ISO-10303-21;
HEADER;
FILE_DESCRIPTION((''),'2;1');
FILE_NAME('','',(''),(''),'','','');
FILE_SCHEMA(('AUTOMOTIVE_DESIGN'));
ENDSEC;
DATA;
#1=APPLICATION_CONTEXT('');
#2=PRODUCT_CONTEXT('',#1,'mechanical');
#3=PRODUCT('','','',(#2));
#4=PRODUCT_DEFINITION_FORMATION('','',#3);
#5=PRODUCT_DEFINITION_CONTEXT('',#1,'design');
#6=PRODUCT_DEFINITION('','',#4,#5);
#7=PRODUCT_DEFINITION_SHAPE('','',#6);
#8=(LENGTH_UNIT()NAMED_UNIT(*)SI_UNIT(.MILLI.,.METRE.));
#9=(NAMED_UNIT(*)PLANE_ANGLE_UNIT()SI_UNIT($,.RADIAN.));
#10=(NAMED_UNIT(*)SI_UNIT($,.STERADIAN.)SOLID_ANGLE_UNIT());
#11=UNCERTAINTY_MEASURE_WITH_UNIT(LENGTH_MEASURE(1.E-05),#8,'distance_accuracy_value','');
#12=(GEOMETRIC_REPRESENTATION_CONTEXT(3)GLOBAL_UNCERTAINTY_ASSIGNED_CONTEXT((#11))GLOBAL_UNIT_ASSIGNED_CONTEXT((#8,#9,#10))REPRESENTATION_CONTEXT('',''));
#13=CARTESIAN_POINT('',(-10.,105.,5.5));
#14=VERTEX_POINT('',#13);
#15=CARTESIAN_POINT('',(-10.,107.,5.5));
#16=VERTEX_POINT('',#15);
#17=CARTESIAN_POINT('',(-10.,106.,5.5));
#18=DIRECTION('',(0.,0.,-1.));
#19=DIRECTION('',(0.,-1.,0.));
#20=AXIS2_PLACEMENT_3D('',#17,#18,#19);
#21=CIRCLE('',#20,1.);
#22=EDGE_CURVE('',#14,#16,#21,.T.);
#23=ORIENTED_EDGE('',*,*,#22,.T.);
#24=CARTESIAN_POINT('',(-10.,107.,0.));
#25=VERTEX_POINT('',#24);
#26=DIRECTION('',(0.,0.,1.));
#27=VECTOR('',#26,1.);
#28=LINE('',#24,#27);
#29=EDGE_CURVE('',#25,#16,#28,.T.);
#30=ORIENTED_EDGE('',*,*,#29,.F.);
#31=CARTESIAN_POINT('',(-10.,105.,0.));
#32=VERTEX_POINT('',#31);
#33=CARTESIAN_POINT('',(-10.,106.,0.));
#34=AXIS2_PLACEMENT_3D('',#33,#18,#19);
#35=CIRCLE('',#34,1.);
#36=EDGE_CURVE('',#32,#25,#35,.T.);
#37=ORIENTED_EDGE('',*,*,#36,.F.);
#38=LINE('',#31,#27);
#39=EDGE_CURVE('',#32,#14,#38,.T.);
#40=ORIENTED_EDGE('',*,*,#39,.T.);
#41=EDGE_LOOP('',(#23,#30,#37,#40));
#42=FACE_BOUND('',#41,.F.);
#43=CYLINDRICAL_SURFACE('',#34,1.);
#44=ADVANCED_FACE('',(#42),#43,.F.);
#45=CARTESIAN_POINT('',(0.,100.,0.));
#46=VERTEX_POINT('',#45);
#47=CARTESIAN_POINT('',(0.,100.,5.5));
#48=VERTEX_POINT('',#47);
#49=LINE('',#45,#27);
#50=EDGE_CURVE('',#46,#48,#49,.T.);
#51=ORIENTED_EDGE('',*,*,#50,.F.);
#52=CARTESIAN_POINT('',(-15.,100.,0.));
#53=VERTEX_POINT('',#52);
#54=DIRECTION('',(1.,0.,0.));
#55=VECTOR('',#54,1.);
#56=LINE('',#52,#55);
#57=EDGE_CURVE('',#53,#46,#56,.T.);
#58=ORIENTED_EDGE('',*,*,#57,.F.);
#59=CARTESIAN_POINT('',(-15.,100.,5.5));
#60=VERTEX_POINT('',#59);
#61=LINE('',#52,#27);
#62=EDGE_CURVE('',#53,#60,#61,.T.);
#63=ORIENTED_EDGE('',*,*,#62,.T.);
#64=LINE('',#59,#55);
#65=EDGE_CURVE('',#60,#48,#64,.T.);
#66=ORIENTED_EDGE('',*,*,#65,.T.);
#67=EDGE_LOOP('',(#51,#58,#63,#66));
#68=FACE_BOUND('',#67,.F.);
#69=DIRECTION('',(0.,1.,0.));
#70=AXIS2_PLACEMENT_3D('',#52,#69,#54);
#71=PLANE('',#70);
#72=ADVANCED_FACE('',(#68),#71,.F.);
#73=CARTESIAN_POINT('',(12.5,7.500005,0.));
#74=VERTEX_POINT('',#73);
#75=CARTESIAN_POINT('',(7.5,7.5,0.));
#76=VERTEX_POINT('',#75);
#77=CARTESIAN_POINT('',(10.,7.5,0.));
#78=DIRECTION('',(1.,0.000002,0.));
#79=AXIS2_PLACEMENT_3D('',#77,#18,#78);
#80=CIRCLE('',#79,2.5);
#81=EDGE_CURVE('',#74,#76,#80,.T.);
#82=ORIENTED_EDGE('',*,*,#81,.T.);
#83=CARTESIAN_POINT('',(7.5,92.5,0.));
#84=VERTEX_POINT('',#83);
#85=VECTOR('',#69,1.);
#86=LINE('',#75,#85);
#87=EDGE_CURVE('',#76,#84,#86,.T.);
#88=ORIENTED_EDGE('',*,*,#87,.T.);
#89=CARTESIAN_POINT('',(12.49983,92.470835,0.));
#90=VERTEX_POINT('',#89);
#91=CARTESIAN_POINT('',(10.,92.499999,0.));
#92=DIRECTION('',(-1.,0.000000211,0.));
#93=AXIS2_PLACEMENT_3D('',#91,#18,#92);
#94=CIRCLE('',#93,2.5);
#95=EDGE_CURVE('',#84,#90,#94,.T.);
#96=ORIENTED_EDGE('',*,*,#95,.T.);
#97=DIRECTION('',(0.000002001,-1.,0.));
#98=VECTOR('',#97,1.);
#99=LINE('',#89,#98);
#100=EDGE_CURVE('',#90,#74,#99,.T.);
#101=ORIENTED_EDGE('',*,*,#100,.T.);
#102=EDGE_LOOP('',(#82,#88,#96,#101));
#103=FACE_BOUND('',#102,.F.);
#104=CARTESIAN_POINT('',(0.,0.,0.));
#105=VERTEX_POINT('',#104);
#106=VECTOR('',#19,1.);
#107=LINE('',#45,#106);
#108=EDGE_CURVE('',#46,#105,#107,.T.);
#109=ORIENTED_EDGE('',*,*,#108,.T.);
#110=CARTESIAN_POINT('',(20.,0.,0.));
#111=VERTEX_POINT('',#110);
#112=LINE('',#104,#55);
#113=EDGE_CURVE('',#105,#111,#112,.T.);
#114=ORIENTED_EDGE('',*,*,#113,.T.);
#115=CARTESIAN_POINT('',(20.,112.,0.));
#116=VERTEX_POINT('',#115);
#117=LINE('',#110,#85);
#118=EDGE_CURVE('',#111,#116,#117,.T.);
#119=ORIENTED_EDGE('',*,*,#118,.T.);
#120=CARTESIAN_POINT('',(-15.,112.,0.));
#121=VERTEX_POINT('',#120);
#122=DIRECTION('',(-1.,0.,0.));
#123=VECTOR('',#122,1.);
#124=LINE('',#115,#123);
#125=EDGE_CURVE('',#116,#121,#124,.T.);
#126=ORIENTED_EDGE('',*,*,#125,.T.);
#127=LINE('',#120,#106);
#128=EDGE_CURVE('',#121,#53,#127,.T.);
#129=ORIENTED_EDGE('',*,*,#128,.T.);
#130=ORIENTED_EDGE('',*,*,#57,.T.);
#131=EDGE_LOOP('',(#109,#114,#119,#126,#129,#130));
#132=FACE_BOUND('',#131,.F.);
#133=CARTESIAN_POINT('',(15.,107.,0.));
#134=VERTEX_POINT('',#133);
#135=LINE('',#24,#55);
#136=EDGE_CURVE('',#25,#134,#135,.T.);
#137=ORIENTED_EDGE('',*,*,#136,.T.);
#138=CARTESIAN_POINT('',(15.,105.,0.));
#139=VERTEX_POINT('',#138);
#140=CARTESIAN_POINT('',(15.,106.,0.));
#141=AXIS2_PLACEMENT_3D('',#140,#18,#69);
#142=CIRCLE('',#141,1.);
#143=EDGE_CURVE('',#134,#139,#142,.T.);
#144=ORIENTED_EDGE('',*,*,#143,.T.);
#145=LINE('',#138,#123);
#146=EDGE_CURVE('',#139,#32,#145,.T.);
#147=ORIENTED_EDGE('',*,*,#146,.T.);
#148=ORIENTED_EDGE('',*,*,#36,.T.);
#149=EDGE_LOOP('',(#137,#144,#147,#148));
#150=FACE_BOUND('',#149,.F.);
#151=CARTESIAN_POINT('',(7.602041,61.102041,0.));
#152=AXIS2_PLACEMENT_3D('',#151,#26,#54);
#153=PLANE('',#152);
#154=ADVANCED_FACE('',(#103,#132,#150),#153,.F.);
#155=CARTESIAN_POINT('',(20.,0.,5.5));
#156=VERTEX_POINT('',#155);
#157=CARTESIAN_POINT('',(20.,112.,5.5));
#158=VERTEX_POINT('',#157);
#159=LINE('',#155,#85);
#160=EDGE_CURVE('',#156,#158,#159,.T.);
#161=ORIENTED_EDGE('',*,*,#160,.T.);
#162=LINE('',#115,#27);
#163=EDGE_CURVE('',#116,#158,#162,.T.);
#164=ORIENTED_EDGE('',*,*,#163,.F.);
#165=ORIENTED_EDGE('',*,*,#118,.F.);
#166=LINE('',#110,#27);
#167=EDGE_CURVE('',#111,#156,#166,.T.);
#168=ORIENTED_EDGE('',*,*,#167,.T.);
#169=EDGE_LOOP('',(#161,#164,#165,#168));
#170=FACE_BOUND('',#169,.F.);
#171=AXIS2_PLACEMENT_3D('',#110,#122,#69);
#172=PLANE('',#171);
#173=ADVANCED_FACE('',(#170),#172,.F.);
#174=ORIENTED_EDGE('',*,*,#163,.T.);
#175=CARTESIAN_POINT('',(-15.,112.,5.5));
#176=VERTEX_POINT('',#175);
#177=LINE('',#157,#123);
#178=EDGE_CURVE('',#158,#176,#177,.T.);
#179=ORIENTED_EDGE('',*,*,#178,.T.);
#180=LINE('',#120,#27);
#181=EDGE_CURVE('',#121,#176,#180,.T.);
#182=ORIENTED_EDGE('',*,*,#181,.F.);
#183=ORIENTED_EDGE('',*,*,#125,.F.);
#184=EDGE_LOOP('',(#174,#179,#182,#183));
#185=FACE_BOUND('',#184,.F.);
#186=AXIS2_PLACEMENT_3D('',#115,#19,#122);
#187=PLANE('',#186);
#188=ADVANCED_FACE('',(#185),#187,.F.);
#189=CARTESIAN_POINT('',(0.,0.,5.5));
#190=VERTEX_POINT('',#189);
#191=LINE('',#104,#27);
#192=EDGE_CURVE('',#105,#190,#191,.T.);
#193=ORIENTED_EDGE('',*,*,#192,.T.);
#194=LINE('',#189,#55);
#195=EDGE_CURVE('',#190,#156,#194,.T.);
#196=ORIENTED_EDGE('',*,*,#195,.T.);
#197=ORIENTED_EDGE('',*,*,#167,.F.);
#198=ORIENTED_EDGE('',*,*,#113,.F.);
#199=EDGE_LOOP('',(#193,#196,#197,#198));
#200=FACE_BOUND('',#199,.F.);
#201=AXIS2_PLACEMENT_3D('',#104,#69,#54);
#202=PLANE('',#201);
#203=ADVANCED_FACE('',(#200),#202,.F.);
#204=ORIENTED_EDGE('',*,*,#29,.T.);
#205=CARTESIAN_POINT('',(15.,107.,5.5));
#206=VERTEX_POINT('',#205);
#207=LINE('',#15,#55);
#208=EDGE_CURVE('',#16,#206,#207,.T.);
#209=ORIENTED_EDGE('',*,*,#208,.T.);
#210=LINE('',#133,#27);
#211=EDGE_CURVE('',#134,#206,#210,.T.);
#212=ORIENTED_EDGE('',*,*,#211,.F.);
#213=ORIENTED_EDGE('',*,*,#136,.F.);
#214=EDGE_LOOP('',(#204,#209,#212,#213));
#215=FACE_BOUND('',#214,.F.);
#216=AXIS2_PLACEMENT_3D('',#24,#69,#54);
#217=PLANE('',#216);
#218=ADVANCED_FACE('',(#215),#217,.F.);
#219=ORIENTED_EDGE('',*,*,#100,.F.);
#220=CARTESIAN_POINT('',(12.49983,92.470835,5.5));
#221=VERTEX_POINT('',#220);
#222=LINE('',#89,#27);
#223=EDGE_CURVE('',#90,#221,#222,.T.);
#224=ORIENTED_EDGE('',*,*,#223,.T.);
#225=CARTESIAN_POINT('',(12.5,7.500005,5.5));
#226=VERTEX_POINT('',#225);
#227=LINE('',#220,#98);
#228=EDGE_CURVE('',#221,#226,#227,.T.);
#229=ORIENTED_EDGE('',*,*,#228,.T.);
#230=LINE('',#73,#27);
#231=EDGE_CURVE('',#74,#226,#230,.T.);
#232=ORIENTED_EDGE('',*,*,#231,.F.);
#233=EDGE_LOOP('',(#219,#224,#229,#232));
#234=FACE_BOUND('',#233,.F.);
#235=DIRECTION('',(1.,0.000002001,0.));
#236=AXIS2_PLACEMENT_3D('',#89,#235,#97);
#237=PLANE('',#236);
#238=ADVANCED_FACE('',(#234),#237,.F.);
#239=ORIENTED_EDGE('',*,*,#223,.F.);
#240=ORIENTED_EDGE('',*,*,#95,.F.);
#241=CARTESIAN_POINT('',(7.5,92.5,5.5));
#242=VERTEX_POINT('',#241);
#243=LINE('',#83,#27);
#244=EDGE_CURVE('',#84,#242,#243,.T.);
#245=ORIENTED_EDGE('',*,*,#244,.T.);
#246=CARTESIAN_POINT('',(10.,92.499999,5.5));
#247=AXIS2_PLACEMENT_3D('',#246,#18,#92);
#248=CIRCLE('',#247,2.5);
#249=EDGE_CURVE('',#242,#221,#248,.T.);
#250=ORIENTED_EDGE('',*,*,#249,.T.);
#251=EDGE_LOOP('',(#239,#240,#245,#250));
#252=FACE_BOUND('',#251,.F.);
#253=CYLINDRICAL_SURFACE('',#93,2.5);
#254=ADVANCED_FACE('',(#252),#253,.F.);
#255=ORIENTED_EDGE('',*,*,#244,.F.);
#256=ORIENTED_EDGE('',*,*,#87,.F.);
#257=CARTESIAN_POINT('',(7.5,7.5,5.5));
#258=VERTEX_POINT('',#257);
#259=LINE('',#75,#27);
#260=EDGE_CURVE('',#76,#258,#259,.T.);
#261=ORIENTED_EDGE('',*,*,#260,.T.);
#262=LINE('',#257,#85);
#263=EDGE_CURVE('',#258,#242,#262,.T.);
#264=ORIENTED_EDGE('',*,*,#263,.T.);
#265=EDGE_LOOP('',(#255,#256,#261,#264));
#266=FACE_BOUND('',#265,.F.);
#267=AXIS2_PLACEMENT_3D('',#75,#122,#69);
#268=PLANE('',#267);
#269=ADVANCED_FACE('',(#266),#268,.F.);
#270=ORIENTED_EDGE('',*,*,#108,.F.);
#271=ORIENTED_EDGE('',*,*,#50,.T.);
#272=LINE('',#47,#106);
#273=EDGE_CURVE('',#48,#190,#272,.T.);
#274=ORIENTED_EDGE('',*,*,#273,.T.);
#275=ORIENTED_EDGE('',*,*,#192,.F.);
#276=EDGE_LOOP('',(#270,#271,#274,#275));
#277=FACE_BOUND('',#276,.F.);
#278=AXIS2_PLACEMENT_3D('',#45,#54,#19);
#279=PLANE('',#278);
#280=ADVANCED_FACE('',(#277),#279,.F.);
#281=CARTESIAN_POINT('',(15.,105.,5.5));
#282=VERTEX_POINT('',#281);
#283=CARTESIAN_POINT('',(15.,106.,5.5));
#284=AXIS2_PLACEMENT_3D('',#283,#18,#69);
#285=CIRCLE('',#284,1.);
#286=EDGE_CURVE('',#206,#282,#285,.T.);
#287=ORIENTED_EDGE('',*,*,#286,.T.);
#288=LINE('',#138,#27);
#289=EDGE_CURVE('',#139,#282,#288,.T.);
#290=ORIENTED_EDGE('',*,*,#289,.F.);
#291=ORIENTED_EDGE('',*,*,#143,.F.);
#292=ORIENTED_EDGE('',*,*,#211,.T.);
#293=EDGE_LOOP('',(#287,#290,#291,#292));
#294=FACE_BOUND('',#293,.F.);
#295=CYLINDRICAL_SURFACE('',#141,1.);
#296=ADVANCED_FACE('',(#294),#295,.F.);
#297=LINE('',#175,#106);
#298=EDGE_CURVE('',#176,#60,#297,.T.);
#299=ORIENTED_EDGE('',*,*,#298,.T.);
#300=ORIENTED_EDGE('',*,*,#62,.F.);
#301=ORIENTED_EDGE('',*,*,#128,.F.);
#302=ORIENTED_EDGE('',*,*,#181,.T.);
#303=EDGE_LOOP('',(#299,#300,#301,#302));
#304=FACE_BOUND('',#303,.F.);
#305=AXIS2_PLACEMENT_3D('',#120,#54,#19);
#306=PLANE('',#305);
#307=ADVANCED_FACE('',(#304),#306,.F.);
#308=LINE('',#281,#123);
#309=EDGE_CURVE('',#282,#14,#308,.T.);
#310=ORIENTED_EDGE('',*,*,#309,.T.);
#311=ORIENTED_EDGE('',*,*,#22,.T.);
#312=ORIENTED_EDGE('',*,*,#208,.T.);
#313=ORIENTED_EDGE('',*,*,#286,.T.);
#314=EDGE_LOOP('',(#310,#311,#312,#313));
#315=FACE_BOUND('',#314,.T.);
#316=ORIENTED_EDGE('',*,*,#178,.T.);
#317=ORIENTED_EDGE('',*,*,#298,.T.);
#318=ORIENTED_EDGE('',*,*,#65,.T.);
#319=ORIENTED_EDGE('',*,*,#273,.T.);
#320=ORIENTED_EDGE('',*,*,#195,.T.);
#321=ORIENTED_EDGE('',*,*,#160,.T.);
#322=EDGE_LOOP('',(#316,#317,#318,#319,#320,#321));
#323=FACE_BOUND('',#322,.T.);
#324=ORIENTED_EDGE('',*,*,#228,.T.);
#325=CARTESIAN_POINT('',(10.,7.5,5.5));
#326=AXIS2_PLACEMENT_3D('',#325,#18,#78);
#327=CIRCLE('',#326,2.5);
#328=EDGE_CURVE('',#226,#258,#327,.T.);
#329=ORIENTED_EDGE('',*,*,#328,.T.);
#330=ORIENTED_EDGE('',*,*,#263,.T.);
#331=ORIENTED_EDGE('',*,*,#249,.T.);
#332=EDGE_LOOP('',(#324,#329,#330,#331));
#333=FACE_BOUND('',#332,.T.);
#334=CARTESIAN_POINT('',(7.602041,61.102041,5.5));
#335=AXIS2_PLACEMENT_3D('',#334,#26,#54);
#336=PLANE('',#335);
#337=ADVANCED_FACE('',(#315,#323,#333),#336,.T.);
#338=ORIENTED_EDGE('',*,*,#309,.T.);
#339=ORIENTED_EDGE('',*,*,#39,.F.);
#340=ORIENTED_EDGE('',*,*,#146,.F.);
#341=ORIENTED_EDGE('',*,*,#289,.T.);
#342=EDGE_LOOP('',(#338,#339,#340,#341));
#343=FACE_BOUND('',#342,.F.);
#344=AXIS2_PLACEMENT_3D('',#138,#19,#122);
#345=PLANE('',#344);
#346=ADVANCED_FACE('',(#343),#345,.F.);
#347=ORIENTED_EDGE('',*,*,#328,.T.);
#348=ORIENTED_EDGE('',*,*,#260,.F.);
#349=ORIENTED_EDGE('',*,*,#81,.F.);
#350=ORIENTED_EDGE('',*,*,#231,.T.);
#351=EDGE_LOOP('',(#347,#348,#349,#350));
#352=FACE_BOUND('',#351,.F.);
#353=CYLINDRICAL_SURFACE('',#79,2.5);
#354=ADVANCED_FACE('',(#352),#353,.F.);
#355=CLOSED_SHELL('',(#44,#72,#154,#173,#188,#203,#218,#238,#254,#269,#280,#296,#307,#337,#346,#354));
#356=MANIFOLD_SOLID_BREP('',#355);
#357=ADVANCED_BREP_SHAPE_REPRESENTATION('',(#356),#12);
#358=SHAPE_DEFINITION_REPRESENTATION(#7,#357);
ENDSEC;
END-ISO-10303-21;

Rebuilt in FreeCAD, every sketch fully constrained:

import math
import FreeCAD as App
import Part
import Sketcher

V = App.Vector


def add_polygon(sketch, points):
    """Adds a closed chain of lines whose ends are joined by coincident constraints."""
    first, n = sketch.GeometryCount, len(points)
    for a, b in zip(points, points[1:] + points[:1]):
        sketch.addGeometry(Part.LineSegment(App.Vector(*a, 0), App.Vector(*b, 0)), False)
    for i in range(n):
        sketch.addConstraint(Sketcher.Constraint("Coincident", first + i, 2, first + (i + 1) % n, 1))

doc = App.newDocument("Part")
body = doc.addObject("PartDesign::Body", "Body")

# Sketch on XY plane
sketch1 = body.newObject("Sketcher::SketchObject", "Sketch")
sketch1.AttachmentSupport = (doc.getObject("XY_Plane"), [""])
sketch1.MapMode = "FlatFace"
add_polygon(sketch1, [(0, 100), (0, 0), (20, 0), (20, 112), (-15, 112), (-15, 100)])  # lines 0-5
sketch1.addGeometry(Part.LineSegment(V(12.49983, 92.470835, 0), V(12.5, 7.500005, 0)), False)  # 6
sketch1.addGeometry(Part.ArcOfCircle(Part.Circle(V(10, 7.5, 0), V(0, 0, 1), 2.5), math.radians(180), math.radians(360.000115)), False)  # 7
sketch1.addGeometry(Part.LineSegment(V(7.5, 7.5, 0), V(7.5, 92.5, 0)), False)  # 8
sketch1.addGeometry(Part.ArcOfCircle(Part.Circle(V(10, 92.499999, 0), V(0, 0, 1), 2.5), math.radians(-0.668416), math.radians(179.999988)), False)  # 9
sketch1.addGeometry(Part.LineSegment(V(-10, 107, 0), V(15, 107, 0)), False)  # 10
sketch1.addGeometry(Part.ArcOfCircle(Part.Circle(V(15, 106, 0), V(0, 0, 1), 1), math.radians(-90), math.radians(90)), False)  # 11
sketch1.addGeometry(Part.LineSegment(V(15, 105, 0), V(-10, 105, 0)), False)  # 12
sketch1.addGeometry(Part.ArcOfCircle(Part.Circle(V(-10, 106, 0), V(0, 0, 1), 1), math.radians(90), math.radians(270)), False)  # 13
sketch1.addConstraint(Sketcher.Constraint("Tangent", 6, 2, 7, 2))
sketch1.addConstraint(Sketcher.Constraint("Tangent", 7, 1, 8, 1))
sketch1.addConstraint(Sketcher.Constraint("Tangent", 8, 2, 9, 2))
sketch1.addConstraint(Sketcher.Constraint("Coincident", 9, 1, 6, 1))
sketch1.addConstraint(Sketcher.Constraint("Tangent", 10, 2, 11, 2))
sketch1.addConstraint(Sketcher.Constraint("Tangent", 11, 1, 12, 1))
sketch1.addConstraint(Sketcher.Constraint("Tangent", 12, 2, 13, 2))
sketch1.addConstraint(Sketcher.Constraint("Tangent", 13, 1, 10, 1))
sketch1.addConstraint(Sketcher.Constraint("Vertical", 0))
sketch1.addConstraint(Sketcher.Constraint("Horizontal", 1))
sketch1.addConstraint(Sketcher.Constraint("Vertical", 2))
sketch1.addConstraint(Sketcher.Constraint("Horizontal", 3))
sketch1.addConstraint(Sketcher.Constraint("Vertical", 4))
sketch1.addConstraint(Sketcher.Constraint("Horizontal", 5))
sketch1.addConstraint(Sketcher.Constraint("Vertical", 8))
sketch1.addConstraint(Sketcher.Constraint("Horizontal", 10))
sketch1.addConstraint(Sketcher.Constraint("Horizontal", 12))
sketch1.addConstraint(Sketcher.Constraint("Coincident", 0, 2, -1, 1))
sketch1.addConstraint(Sketcher.Constraint("Equal", 7, 9))
sketch1.addConstraint(Sketcher.Constraint("Radius", 11, 1.0))
sketch1.addConstraint(Sketcher.Constraint("Radius", 7, 2.5))
sketch1.addConstraint(Sketcher.Constraint("DistanceX", 1, 1, 1, 2, 20.0))
sketch1.addConstraint(Sketcher.Constraint("DistanceX", 3, 2, 3, 1, 35.0))
sketch1.addConstraint(Sketcher.Constraint("DistanceX", 10, 1, 10, 2, 25.0))
sketch1.addConstraint(Sketcher.Constraint("DistanceY", 0, 2, 0, 1, 100.0))
sketch1.addConstraint(Sketcher.Constraint("DistanceY", 2, 1, 2, 2, 112.0))
sketch1.addConstraint(Sketcher.Constraint("DistanceY", 8, 1, 8, 2, 85.0))
sketch1.addConstraint(Sketcher.Constraint("DistanceX", -1, 1, 7, 3, 10.0))
sketch1.addConstraint(Sketcher.Constraint("DistanceX", -1, 1, 11, 3, 15.0))
sketch1.addConstraint(Sketcher.Constraint("DistanceY", -1, 1, 11, 3, 106.0))
sketch1.addConstraint(Sketcher.Constraint("DistanceY", -1, 1, 7, 3, 7.5))
sketch1.addConstraint(Sketcher.Constraint("Distance", 6, 84.97083))
pad1 = body.newObject("PartDesign::Pad", "Pad")
pad1.Profile = sketch1
pad1.Length = 5.5

doc.recompute()
